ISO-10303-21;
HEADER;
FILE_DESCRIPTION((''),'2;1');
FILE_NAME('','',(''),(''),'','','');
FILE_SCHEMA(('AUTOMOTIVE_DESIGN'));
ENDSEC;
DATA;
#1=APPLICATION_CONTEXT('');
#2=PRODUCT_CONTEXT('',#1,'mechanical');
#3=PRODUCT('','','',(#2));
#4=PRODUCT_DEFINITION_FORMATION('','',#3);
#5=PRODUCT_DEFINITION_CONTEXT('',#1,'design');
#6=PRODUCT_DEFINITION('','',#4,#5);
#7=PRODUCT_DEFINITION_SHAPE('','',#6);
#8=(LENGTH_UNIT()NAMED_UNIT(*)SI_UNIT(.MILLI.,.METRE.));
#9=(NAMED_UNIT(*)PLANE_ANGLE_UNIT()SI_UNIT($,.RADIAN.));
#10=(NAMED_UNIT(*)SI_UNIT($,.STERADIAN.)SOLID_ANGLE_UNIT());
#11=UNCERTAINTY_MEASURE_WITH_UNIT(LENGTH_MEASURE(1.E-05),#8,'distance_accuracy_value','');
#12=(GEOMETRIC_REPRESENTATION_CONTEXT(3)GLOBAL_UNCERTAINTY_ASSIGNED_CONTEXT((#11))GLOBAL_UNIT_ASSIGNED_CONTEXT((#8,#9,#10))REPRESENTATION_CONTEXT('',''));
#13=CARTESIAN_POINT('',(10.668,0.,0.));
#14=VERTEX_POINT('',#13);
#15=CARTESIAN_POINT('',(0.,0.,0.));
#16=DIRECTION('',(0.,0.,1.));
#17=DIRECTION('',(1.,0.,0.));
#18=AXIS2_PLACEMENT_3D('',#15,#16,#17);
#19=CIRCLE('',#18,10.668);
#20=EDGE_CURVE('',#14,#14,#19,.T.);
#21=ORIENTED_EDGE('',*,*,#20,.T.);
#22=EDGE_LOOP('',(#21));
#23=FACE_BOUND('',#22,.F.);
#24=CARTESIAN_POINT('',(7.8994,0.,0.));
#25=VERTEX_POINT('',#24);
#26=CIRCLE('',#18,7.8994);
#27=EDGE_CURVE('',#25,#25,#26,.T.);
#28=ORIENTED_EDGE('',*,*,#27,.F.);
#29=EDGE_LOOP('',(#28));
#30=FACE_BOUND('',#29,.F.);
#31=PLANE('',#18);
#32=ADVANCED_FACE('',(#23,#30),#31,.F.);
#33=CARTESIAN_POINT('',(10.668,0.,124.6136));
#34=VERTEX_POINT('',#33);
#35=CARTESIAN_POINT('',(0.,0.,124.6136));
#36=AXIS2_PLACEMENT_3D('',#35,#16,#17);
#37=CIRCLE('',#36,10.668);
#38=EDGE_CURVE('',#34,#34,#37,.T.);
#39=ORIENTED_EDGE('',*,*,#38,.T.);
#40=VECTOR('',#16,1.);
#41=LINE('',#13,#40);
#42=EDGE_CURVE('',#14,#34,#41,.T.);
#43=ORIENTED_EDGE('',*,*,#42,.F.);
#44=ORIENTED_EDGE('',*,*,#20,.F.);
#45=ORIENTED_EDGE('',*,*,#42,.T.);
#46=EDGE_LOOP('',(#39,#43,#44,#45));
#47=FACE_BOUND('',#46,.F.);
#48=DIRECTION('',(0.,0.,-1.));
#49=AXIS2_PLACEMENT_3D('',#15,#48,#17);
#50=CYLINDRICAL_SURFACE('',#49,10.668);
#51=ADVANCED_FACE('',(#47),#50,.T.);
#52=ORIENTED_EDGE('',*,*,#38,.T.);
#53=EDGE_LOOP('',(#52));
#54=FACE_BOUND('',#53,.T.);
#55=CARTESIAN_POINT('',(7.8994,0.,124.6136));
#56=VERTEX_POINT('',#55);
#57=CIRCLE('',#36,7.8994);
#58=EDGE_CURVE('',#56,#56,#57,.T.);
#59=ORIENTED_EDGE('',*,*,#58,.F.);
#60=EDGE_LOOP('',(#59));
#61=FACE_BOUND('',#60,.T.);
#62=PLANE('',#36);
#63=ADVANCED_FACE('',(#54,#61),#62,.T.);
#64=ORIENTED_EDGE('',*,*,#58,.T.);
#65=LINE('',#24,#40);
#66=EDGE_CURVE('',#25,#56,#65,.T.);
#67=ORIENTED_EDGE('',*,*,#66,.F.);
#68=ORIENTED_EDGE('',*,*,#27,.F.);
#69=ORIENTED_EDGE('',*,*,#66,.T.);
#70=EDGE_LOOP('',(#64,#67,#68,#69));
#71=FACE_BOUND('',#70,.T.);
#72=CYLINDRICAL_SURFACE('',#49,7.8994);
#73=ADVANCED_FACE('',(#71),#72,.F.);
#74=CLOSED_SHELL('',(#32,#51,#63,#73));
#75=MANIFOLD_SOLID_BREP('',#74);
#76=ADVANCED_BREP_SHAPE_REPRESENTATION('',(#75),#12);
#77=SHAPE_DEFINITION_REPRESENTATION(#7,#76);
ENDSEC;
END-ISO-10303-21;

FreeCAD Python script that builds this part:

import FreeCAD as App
import Part
import Sketcher
from FreeCAD import Vector
Q = App.Units.Quantity

doc = App.newDocument("Part")
body = doc.addObject("PartDesign::Body", "Body")

sketch1 = doc.addObject("Sketcher::SketchObject", "Sketch")
body.addObject(sketch1)
sketch1.AttachmentSupport = (doc.XY_Plane, [""])
sketch1.MapMode = "FlatFace"
sketch1.addGeometry([
    Part.Circle(Vector(0, 0, 0), Vector(0, 0, 1), 11),
    Part.Circle(Vector(0, 0, 0), Vector(0, 0, 1), 8),
], False)
sketch1.addConstraint([
    Sketcher.Constraint("Coincident", 0, 3, -1, 1),
    Sketcher.Constraint("Coincident", 1, 3, -1, 1),
    Sketcher.Constraint("Diameter", 0, Q("0.84 in")),
    Sketcher.Constraint("Diameter", 1, Q("0.622 in")),
])
pad1 = doc.addObject("PartDesign::Pad", "Pad")
body.addObject(pad1)
pad1.Profile = sketch1
pad1.Length = 124.6136

doc.recompute()
